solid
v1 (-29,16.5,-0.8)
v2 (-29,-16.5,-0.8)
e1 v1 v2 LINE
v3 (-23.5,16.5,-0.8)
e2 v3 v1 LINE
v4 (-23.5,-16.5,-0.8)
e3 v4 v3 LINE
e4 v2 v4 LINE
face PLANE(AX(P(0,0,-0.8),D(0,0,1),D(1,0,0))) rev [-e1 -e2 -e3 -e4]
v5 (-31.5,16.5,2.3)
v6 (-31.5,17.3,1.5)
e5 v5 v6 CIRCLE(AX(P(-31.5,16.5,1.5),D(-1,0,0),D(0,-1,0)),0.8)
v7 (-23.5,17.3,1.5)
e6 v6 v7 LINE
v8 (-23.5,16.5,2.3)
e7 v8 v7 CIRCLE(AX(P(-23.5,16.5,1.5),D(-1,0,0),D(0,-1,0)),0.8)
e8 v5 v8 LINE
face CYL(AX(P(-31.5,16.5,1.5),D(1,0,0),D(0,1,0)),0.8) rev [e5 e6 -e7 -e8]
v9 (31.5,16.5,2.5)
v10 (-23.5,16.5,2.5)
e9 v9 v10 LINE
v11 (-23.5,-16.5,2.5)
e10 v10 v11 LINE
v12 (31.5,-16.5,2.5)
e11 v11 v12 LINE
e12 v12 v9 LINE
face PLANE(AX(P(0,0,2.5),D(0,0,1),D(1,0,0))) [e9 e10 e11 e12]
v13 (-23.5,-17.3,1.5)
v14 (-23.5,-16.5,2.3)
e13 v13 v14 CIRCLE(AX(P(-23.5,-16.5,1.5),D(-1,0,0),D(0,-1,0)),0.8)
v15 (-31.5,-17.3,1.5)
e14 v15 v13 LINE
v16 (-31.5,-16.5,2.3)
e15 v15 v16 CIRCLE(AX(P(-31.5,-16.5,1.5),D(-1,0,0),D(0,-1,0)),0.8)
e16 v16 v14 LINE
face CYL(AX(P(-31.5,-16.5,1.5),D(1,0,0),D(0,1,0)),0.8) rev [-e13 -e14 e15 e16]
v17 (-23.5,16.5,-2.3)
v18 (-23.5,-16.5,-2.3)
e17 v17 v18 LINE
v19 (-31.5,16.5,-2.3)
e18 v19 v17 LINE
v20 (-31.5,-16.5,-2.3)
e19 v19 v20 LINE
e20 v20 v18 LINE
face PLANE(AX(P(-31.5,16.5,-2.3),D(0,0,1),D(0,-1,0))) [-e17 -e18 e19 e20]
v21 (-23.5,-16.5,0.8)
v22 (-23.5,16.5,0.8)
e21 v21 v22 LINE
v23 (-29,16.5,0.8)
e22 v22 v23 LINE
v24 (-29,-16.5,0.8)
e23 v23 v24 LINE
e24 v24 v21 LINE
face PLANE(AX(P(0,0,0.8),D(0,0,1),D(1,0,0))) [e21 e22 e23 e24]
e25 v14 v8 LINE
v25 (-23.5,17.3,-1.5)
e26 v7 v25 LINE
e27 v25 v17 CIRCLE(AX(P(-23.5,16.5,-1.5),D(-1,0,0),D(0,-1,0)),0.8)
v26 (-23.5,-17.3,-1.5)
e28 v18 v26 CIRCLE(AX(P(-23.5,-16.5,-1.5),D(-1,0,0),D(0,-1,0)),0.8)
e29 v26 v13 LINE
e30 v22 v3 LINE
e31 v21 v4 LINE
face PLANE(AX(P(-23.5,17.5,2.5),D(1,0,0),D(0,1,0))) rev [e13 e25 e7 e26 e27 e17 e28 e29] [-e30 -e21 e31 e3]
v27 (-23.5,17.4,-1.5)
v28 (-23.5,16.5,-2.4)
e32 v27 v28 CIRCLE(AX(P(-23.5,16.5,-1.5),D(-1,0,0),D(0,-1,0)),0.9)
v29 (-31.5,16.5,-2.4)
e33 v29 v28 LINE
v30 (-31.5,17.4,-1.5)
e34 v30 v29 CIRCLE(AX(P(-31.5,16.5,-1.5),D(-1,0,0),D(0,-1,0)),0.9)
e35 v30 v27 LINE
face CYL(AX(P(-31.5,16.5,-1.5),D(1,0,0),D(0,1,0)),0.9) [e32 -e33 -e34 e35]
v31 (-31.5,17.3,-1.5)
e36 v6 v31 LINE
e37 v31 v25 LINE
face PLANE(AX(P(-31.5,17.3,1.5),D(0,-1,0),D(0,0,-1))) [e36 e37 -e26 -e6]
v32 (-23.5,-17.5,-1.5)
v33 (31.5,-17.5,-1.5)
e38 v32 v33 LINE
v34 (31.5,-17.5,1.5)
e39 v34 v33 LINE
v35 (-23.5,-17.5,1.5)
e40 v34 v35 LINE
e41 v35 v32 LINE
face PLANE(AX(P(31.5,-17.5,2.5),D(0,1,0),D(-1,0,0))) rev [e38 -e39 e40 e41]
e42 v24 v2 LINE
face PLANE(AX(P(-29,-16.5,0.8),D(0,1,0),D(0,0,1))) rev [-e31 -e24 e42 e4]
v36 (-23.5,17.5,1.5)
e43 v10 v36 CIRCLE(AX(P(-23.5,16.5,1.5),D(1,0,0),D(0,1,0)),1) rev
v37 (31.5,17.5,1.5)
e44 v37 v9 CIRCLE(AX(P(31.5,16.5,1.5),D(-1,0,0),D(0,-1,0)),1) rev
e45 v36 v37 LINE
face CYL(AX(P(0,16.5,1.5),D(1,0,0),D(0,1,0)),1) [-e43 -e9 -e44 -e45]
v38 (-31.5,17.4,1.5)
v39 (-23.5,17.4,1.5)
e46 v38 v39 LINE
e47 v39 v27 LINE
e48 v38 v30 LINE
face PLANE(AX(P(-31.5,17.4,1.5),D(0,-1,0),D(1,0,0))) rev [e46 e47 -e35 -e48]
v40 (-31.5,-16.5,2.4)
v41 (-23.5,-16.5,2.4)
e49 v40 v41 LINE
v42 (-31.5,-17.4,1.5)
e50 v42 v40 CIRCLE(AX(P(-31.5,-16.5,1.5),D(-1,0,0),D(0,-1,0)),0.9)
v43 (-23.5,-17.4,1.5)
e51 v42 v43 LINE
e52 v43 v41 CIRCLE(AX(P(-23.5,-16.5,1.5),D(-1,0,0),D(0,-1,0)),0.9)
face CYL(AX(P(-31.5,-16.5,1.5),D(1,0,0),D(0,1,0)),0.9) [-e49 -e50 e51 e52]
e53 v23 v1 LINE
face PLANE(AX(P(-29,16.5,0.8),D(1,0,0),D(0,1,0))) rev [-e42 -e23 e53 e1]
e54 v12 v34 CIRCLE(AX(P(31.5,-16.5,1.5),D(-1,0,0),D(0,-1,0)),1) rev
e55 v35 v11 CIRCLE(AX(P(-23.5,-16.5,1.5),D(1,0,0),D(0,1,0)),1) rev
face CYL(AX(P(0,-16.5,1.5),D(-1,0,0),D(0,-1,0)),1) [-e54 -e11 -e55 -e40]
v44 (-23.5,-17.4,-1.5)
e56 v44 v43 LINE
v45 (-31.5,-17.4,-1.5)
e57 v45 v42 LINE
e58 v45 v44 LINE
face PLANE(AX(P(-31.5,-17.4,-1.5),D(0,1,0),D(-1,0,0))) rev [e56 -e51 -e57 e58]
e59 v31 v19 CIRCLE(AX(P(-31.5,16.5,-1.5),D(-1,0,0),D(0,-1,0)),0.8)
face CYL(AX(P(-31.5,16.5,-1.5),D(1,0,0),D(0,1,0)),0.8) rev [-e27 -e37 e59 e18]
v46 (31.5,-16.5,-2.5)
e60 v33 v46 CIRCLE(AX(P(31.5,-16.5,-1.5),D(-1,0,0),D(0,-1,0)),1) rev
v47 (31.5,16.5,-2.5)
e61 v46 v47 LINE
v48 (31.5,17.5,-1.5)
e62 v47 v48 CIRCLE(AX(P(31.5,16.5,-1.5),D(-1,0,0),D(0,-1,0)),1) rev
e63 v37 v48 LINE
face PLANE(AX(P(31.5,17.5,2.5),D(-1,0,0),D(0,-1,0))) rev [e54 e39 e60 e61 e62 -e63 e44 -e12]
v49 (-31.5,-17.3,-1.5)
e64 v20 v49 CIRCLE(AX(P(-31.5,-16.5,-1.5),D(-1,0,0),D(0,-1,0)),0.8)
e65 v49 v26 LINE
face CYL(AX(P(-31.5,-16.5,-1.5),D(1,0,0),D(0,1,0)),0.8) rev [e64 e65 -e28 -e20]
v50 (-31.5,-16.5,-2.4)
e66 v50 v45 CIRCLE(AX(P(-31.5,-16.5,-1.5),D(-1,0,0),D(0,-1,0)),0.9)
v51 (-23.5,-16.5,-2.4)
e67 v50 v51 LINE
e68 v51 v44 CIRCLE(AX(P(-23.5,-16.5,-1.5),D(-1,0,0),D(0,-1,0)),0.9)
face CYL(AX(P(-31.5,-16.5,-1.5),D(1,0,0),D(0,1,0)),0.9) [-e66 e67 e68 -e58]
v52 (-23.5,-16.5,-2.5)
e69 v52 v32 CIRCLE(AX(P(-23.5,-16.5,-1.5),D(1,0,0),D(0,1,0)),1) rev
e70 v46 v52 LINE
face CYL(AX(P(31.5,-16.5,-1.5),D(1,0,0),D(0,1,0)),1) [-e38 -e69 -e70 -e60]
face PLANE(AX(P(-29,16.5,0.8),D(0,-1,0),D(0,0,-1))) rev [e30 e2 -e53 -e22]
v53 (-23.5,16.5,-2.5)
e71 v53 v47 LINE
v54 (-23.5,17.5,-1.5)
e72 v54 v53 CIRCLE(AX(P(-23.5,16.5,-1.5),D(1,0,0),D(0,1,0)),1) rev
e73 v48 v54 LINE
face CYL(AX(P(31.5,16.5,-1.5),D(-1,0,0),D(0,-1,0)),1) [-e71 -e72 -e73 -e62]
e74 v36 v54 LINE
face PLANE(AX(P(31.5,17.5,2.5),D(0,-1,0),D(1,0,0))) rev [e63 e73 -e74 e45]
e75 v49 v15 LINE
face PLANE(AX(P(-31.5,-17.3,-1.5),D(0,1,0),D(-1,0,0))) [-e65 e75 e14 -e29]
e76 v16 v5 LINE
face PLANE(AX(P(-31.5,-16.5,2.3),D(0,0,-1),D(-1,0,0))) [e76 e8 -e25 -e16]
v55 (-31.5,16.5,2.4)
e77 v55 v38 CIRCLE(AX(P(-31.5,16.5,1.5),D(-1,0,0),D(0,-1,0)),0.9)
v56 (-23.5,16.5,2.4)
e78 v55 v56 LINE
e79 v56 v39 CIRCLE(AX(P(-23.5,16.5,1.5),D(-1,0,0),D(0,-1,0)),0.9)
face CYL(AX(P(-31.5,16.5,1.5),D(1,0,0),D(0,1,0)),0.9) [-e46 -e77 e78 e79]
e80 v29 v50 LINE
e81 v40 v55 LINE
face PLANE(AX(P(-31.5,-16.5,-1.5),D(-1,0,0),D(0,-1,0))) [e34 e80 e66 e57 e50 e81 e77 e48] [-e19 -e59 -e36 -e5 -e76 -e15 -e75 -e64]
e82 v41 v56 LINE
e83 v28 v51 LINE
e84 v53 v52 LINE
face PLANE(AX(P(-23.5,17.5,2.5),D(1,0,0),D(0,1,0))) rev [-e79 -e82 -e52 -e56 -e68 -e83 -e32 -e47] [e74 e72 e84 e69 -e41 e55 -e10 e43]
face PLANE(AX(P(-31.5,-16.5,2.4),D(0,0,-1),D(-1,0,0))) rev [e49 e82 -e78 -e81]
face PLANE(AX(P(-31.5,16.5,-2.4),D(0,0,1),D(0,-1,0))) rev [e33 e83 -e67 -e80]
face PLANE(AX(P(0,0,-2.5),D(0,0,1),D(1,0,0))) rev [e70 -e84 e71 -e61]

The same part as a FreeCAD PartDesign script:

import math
import FreeCAD as App
import Part
import Sketcher
Q = App.Units.Quantity


def edges_at(feature, points):
    """Names of the edges that pass closest to the given points."""
    edges = feature.Shape.Edges
    near = lambda p: min(range(len(edges)), key=lambda i: edges[i].distToShape(Part.Vertex(*p))[0])
    return sorted({f"Edge{near(p) + 1}" for p in points})

doc = App.newDocument("Part")
body = doc.addObject("PartDesign::Body", "Body")

# Sketch on XY plane
sketch1 = body.newObject("Sketcher::SketchObject", "Sketch")
sketch1.AttachmentSupport = (doc.getObject("XY_Plane"), [""])
sketch1.MapMode = "FlatFace"
sketch1.addGeometry([
    Part.LineSegment(App.Vector(-23.5, 17.5, 0), App.Vector(-23.5, -17.5, 0)),
    Part.LineSegment(App.Vector(-23.5, -17.5, 0), App.Vector(31.5, -17.5, 0)),
    Part.LineSegment(App.Vector(31.5, -17.5, 0), App.Vector(31.5, 17.5, 0)),
    Part.LineSegment(App.Vector(31.5, 17.5, 0), App.Vector(-23.5, 17.5, 0)),
], False)
sketch1.addConstraint([
    Sketcher.Constraint("Coincident", 0, 2, 1, 1),
    Sketcher.Constraint("Coincident", 1, 2, 2, 1),
    Sketcher.Constraint("Coincident", 2, 2, 3, 1),
    Sketcher.Constraint("Coincident", 3, 2, 0, 1),
    Sketcher.Constraint("Vertical", 0),
    Sketcher.Constraint("Horizontal", 1),
    Sketcher.Constraint("Vertical", 2),
    Sketcher.Constraint("Horizontal", 3),
    Sketcher.Constraint("DistanceX", 1, 1, 1, 2, Q("55 mm")),
    Sketcher.Constraint("DistanceY", 0, 2, 0, 1, Q("35 mm")),
    Sketcher.Constraint("DistanceX", 0, 2, -1, 1, Q("23.5 mm")),
    Sketcher.Constraint("DistanceY", 0, 2, -1, 1, Q("17.5 mm")),
])
pad1 = body.newObject("PartDesign::Pad", "Pad")
pad1.Profile = sketch1
pad1.Length = 5
pad1.Midplane = True
doc.recompute()

fillet = body.newObject("PartDesign::Fillet", "Fillet")
fillet.Base = (pad1, edges_at(pad1, [
    (4, 17.5, 2.5),
    (4, -17.5, 2.5),
    (4, 17.5, -2.5),
    (4, -17.5, -2.5),
]))
fillet.Radius = 1

# Sketch on XY plane
sketch2 = body.newObject("Sketcher::SketchObject", "Sketch001")
sketch2.AttachmentSupport = (doc.getObject("XY_Plane"), [""])
sketch2.MapMode = "FlatFace"
sketch2.addGeometry([
    Part.LineSegment(App.Vector(-29, 16.5, 0), App.Vector(-29, -16.5, 0)),
    Part.LineSegment(App.Vector(-29, -16.5, 0), App.Vector(-23.5, -16.5, 0)),
    Part.LineSegment(App.Vector(-23.5, -16.5, 0), App.Vector(-23.5, 16.5, 0)),
    Part.LineSegment(App.Vector(-23.5, 16.5, 0), App.Vector(-29, 16.5, 0)),
], False)
sketch2.addConstraint([
    Sketcher.Constraint("Coincident", 0, 2, 1, 1),
    Sketcher.Constraint("Coincident", 1, 2, 2, 1),
    Sketcher.Constraint("Coincident", 2, 2, 3, 1),
    Sketcher.Constraint("Coincident", 3, 2, 0, 1),
    Sketcher.Constraint("Vertical", 0),
    Sketcher.Constraint("Horizontal", 1),
    Sketcher.Constraint("Vertical", 2),
    Sketcher.Constraint("Horizontal", 3),
    Sketcher.Constraint("DistanceY", 0, 2, 0, 1, Q("33 mm")),
    Sketcher.Constraint("DistanceX", 1, 1, 1, 2, Q("5.5 mm")),
    Sketcher.Constraint("DistanceX", 0, 2, -1, 1, Q("29 mm")),
    Sketcher.Constraint("DistanceY", 0, 2, -1, 1, Q("16.5 mm")),
])
pad2 = body.newObject("PartDesign::Pad", "Pad001")
pad2.Profile = sketch2
pad2.Length = 1.6
pad2.Midplane = True

# Sketch on YZ plane
sketch3 = body.newObject("Sketcher::SketchObject", "Sketch002")
sketch3.AttachmentSupport = (doc.getObject("YZ_Plane"), [""])
sketch3.MapMode = "FlatFace"
sketch3.AttachmentOffset = App.Placement(App.Vector(0, 0, -23.5), App.Rotation())
sketch3.addGeometry([
    Part.LineSegment(App.Vector(-17.4, -1.5, 0), App.Vector(-17.4, 1.5, 0)),  # 0
    Part.ArcOfCircle(Part.Circle(App.Vector(-16.5, 1.5, 0), App.Vector(0, 0, 1), 0.9), math.radians(90), math.radians(180)),  # 1
    Part.LineSegment(App.Vector(-16.5, 2.4, 0), App.Vector(16.5, 2.4, 0)),  # 2
    Part.ArcOfCircle(Part.Circle(App.Vector(16.5, 1.5, 0), App.Vector(0, 0, 1), 0.9), math.radians(0), math.radians(90)),  # 3
    Part.LineSegment(App.Vector(17.4, 1.5, 0), App.Vector(17.4, -1.5, 0)),  # 4
    Part.ArcOfCircle(Part.Circle(App.Vector(16.5, -1.5, 0), App.Vector(0, 0, 1), 0.9), math.radians(-90), math.radians(0)),  # 5
    Part.LineSegment(App.Vector(16.5, -2.4, 0), App.Vector(-16.5, -2.4, 0)),  # 6
    Part.ArcOfCircle(Part.Circle(App.Vector(-16.5, -1.5, 0), App.Vector(0, 0, 1), 0.9), math.radians(180), math.radians(270)),  # 7
    Part.LineSegment(App.Vector(-17.3, 1.5, 0), App.Vector(-17.3, -1.5, 0)),  # 8
    Part.ArcOfCircle(Part.Circle(App.Vector(-16.5, -1.5, 0), App.Vector(0, 0, 1), 0.8), math.radians(180), math.radians(270)),  # 9
    Part.LineSegment(App.Vector(-16.5, -2.3, 0), App.Vector(16.5, -2.3, 0)),  # 10
    Part.ArcOfCircle(Part.Circle(App.Vector(16.5, -1.5, 0), App.Vector(0, 0, 1), 0.8), math.radians(-90), math.radians(0)),  # 11
    Part.LineSegment(App.Vector(17.3, -1.5, 0), App.Vector(17.3, 1.5, 0)),  # 12
    Part.ArcOfCircle(Part.Circle(App.Vector(16.5, 1.5, 0), App.Vector(0, 0, 1), 0.8), math.radians(0), math.radians(90)),  # 13
    Part.LineSegment(App.Vector(16.5, 2.3, 0), App.Vector(-16.5, 2.3, 0)),  # 14
    Part.ArcOfCircle(Part.Circle(App.Vector(-16.5, 1.5, 0), App.Vector(0, 0, 1), 0.8), math.radians(90), math.radians(180)),  # 15
], False)
sketch3.addConstraint([
    Sketcher.Constraint("Tangent", 0, 2, 1, 2),
    Sketcher.Constraint("Tangent", 1, 1, 2, 1),
    Sketcher.Constraint("Tangent", 2, 2, 3, 2),
    Sketcher.Constraint("Tangent", 3, 1, 4, 1),
    Sketcher.Constraint("Tangent", 4, 2, 5, 2),
    Sketcher.Constraint("Tangent", 5, 1, 6, 1),
    Sketcher.Constraint("Tangent", 6, 2, 7, 2),
    Sketcher.Constraint("Tangent", 7, 1, 0, 1),
    Sketcher.Constraint("Tangent", 8, 2, 9, 1),
    Sketcher.Constraint("Tangent", 9, 2, 10, 1),
    Sketcher.Constraint("Tangent", 10, 2, 11, 1),
    Sketcher.Constraint("Tangent", 11, 2, 12, 1),
    Sketcher.Constraint("Tangent", 12, 2, 13, 1),
    Sketcher.Constraint("Tangent", 13, 2, 14, 1),
    Sketcher.Constraint("Tangent", 14, 2, 15, 1),
    Sketcher.Constraint("Tangent", 15, 2, 8, 1),
    Sketcher.Constraint("Vertical", 0),
    Sketcher.Constraint("Horizontal", 2),
    Sketcher.Constraint("Vertical", 4),
    Sketcher.Constraint("Horizontal", 6),
    Sketcher.Constraint("Vertical", 8),
    Sketcher.Constraint("Horizontal", 10),
    Sketcher.Constraint("Vertical", 12),
    Sketcher.Constraint("Horizontal", 14),
    Sketcher.Constraint("Coincident", 9, 3, 7, 3),
    Sketcher.Constraint("Coincident", 11, 3, 5, 3),
    Sketcher.Constraint("Coincident", 13, 3, 3, 3),
    Sketcher.Constraint("Equal", 1, 3),
    Sketcher.Constraint("Equal", 3, 5),
    Sketcher.Constraint("Equal", 5, 7),
    Sketcher.Constraint("Equal", 13, 15),
    Sketcher.Constraint("Symmetric", 1, 3, 5, 3, -1, 1),
    Sketcher.Constraint("Radius", 1, Q("0.9 mm")),
    Sketcher.Constraint("Radius", 9, Q("0.8 mm")),
    Sketcher.Constraint("DistanceX", 2, 1, 2, 2, Q("33 mm")),
    Sketcher.Constraint("DistanceY", 0, 1, 0, 2, Q("3 mm")),
])
pad3 = body.newObject("PartDesign::Pad", "Pad002")
pad3.Profile = sketch3
pad3.Length = 8
pad3.Reversed = True

doc.recompute()
